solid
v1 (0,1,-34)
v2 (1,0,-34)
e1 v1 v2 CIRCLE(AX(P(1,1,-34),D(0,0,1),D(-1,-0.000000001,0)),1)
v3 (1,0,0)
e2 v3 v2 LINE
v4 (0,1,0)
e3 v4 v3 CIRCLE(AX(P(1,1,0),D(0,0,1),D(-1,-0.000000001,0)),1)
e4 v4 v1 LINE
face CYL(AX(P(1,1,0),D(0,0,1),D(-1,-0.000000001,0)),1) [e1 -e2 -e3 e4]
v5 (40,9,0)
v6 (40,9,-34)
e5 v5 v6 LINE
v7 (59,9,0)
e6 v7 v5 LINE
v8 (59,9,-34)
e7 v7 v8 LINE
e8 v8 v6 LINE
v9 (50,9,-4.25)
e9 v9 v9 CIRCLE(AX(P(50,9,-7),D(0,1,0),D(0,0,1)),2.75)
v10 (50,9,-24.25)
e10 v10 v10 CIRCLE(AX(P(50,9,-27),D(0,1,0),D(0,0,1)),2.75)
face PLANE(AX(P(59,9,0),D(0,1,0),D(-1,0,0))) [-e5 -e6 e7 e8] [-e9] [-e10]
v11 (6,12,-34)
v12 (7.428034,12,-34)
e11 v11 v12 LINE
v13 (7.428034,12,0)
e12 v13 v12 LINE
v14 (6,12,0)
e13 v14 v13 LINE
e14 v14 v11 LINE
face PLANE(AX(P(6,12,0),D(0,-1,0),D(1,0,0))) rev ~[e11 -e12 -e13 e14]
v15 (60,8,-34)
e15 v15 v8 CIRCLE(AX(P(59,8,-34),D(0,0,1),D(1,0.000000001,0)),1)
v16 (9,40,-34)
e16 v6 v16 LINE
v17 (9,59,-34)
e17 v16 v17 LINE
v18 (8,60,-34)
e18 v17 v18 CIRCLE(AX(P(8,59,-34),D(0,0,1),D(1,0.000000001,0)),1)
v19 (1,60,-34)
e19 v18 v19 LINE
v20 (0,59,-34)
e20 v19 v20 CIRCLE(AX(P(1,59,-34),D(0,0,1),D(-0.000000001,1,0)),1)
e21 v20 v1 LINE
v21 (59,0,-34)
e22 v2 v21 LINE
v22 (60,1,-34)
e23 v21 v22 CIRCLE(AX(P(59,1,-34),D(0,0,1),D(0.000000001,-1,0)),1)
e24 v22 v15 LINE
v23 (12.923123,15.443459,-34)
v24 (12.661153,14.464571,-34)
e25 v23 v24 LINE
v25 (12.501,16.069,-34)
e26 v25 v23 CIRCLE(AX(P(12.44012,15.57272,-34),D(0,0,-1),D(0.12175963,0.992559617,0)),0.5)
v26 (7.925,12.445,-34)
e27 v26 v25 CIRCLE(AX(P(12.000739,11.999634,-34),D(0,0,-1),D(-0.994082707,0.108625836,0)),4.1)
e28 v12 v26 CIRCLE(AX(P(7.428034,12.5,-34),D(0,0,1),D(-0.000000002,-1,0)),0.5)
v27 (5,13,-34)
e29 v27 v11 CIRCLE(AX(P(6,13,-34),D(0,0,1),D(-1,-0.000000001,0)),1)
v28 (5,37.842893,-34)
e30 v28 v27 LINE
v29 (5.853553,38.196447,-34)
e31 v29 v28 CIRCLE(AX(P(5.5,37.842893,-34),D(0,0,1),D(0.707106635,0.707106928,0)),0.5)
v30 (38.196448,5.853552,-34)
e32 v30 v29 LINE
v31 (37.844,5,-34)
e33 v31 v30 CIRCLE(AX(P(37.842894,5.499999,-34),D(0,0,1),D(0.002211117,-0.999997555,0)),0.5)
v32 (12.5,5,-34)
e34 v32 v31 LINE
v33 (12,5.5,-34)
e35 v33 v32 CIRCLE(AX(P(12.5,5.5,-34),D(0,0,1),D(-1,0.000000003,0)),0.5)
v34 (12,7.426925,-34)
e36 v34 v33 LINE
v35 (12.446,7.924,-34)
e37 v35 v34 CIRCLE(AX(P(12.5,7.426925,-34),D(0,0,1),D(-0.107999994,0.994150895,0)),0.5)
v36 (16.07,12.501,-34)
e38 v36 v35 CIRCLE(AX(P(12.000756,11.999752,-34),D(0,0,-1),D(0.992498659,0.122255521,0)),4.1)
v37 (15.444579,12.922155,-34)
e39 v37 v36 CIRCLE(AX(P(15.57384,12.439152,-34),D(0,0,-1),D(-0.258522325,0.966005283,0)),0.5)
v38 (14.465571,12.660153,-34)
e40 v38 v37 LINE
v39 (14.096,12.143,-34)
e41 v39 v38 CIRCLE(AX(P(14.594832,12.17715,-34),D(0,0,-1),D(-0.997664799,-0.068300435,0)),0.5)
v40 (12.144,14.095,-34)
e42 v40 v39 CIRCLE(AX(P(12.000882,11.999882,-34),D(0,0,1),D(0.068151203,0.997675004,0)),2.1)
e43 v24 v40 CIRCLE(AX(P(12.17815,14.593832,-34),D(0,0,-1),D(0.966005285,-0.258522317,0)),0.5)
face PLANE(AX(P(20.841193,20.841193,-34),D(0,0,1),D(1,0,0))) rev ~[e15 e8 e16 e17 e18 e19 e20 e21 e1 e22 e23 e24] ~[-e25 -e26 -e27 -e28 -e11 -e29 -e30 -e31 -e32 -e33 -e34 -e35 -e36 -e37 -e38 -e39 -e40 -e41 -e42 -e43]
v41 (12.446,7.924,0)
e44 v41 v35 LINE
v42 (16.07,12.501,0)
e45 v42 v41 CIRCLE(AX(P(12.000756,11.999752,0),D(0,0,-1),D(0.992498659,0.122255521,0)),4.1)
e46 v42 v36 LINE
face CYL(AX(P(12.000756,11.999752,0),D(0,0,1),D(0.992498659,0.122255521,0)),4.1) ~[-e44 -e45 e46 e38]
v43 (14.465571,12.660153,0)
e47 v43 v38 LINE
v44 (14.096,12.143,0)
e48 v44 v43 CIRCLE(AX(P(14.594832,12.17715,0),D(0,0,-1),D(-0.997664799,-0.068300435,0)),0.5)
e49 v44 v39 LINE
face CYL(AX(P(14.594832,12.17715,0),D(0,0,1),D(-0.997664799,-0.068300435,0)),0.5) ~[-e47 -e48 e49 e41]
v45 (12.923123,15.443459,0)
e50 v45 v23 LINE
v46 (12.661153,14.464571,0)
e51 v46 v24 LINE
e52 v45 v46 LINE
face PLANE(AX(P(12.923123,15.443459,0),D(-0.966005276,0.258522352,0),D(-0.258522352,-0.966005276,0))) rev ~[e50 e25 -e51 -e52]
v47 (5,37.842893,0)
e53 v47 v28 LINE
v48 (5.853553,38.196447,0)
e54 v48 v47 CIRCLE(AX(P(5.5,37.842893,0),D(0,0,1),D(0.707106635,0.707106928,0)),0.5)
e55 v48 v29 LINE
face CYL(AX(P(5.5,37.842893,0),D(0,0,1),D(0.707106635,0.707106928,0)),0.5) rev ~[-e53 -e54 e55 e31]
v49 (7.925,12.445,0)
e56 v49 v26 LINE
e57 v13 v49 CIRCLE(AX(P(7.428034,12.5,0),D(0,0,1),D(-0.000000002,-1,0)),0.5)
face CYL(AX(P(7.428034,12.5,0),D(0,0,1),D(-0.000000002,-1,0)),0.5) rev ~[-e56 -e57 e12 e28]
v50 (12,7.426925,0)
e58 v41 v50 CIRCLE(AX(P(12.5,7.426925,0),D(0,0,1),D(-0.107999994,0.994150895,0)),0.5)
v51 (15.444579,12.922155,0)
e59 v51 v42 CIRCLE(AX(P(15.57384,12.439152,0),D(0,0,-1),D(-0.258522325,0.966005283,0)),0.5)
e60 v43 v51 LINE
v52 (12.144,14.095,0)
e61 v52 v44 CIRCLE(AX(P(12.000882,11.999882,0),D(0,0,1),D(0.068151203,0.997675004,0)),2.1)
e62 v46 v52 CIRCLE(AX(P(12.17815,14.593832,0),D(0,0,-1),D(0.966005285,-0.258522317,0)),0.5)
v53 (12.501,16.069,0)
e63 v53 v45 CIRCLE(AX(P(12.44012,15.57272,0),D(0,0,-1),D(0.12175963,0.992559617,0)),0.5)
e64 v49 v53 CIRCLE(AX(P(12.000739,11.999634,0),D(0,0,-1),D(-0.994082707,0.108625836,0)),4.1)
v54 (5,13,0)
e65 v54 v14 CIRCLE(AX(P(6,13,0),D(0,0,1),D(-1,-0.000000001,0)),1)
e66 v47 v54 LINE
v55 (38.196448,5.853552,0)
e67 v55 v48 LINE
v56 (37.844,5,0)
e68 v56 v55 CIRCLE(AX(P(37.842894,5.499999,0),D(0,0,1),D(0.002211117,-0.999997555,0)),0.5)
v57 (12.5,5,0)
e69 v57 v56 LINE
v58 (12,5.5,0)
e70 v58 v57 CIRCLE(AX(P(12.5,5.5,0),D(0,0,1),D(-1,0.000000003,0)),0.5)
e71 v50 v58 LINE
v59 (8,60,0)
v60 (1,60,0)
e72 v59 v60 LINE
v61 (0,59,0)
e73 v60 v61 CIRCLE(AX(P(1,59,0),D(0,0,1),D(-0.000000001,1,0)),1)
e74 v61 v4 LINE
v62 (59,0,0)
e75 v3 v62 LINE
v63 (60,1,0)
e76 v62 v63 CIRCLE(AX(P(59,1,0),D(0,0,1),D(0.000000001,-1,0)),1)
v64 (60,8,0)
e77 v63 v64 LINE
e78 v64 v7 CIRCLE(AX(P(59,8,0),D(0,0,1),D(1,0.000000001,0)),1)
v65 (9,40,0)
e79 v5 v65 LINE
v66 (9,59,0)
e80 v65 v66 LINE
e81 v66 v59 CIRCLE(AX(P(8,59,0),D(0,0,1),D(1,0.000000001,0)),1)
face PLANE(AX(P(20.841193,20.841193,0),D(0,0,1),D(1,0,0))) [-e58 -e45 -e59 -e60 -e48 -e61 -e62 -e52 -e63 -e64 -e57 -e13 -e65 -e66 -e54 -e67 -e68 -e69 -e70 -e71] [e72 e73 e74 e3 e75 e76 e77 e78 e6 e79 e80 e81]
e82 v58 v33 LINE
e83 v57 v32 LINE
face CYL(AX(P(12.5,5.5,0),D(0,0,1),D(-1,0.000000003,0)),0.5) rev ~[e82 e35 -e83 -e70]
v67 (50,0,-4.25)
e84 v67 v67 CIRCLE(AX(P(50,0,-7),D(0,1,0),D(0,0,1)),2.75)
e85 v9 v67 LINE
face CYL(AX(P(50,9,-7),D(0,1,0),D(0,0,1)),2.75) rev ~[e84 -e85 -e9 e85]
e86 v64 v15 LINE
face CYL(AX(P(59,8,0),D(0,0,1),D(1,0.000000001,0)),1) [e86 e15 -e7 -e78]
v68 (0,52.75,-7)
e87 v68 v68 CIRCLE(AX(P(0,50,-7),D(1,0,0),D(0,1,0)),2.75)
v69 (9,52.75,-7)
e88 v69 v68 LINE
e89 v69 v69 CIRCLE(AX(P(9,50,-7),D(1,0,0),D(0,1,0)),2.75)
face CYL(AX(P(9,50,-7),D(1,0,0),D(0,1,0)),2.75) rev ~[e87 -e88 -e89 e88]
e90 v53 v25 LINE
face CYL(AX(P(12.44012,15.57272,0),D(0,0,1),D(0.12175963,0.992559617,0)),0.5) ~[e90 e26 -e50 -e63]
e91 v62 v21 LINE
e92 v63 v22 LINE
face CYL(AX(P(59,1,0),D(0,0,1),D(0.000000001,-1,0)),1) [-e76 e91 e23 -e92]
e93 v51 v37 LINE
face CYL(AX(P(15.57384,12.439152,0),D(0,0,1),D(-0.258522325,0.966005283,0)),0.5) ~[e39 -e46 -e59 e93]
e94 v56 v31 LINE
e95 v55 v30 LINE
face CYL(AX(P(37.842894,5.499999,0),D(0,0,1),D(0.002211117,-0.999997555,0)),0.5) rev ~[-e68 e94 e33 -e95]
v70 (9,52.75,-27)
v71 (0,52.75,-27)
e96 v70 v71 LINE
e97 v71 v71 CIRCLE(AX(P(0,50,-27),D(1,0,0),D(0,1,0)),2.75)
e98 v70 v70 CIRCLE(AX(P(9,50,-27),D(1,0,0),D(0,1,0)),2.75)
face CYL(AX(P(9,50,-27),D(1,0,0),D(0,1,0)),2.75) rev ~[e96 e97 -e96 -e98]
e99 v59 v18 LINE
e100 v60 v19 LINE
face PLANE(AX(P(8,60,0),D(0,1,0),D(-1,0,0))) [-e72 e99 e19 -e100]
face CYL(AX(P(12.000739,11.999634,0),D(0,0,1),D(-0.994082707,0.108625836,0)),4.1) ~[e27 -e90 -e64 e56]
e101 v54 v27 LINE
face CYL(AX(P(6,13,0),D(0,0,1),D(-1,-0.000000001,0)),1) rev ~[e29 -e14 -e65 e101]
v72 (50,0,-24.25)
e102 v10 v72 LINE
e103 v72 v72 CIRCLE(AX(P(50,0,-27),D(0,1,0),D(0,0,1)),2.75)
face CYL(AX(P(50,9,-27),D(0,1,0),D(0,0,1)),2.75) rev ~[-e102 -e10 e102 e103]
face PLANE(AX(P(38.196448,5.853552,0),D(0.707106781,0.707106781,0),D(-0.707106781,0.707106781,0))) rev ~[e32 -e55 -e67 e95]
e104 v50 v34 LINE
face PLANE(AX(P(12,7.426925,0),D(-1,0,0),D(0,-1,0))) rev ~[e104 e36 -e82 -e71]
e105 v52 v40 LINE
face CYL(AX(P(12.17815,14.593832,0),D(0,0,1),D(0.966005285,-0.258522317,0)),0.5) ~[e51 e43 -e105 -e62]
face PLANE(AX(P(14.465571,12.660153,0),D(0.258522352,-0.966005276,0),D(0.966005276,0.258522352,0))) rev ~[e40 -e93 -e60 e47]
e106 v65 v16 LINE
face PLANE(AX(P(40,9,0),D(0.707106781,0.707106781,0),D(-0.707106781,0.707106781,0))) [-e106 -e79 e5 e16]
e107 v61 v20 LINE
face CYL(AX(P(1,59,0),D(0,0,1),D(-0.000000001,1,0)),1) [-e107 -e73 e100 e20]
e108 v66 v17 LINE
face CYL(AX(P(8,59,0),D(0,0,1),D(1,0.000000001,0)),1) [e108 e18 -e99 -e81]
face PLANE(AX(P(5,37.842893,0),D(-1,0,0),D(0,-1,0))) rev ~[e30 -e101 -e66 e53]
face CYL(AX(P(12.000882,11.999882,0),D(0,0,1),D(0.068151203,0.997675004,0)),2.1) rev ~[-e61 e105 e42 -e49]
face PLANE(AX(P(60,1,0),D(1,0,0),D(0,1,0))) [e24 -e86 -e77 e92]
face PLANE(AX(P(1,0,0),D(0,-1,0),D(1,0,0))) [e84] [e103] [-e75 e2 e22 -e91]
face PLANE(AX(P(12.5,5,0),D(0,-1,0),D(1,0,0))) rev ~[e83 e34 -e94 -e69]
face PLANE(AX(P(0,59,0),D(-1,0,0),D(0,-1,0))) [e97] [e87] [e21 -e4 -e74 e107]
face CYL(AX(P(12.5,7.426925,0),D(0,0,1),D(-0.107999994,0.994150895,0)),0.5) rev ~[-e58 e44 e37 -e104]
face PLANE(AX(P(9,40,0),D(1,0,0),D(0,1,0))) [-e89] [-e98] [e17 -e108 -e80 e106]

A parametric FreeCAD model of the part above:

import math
import FreeCAD as App
import Part
import Sketcher
from FreeCAD import Vector
Q = App.Units.Quantity

doc = App.newDocument("Part")
body = doc.addObject("PartDesign::Body", "Body")

sketch1 = body.newObject("Sketcher::SketchObject", "Sketch")
sketch1.AttachmentSupport = (doc.getObject("XY_Plane"), [""])
sketch1.MapMode = "FlatFace"
sketch1.addGeometry([
    Part.LineSegment(Vector(40, 9, 0), Vector(9, 40, 0)),
    Part.LineSegment(Vector(9, 40, 0), Vector(9, 59, 0)),
    Part.ArcOfCircle(Part.Circle(Vector(8, 59, 0), Vector(0, 0, 1), 1), math.radians(0), math.radians(90)),
    Part.LineSegment(Vector(8, 60, 0), Vector(1, 60, 0)),
    Part.ArcOfCircle(Part.Circle(Vector(1, 59, 0), Vector(0, 0, 1), 1), math.radians(90), math.radians(180)),
    Part.LineSegment(Vector(0, 59, 0), Vector(0, 1, 0)),
    Part.ArcOfCircle(Part.Circle(Vector(1, 1, 0), Vector(0, 0, 1), 1), math.radians(-180), math.radians(-90)),
    Part.LineSegment(Vector(1, 0, 0), Vector(59, 0, 0)),
    Part.ArcOfCircle(Part.Circle(Vector(59, 1, 0), Vector(0, 0, 1), 1), math.radians(-90), math.radians(0)),
    Part.LineSegment(Vector(60, 1, 0), Vector(60, 8, 0)),
    Part.ArcOfCircle(Part.Circle(Vector(59, 8, 0), Vector(0, 0, 1), 1), math.radians(0), math.radians(90)),
    Part.LineSegment(Vector(59, 9, 0), Vector(40, 9, 0)),
    Part.LineSegment(Vector(7.428034, 12, 0), Vector(6, 12, 0)),
    Part.ArcOfCircle(Part.Circle(Vector(6, 13, 0), Vector(0, 0, 1), 1), math.radians(-180), math.radians(-90)),
    Part.LineSegment(Vector(5, 13, 0), Vector(5, 37.842893, 0)),
    Part.ArcOfCircle(Part.Circle(Vector(5.5, 37.842893, 0), Vector(0, 0, 1), 0.5), math.radians(45.000012), math.radians(179.999983)),
    Part.LineSegment(Vector(5.853553, 38.196447, 0), Vector(38.196448, 5.853552, 0)),
    Part.ArcOfCircle(Part.Circle(Vector(37.842894, 5.499999, 0), Vector(0, 0, 1), 0.5), math.radians(-89.873312), math.radians(44.999983)),
    Part.LineSegment(Vector(37.844, 5, 0), Vector(12.5, 5, 0)),
    Part.ArcOfCircle(Part.Circle(Vector(12.5, 5.5, 0), Vector(0, 0, 1), 0.5), math.radians(180), math.radians(270)),
    Part.LineSegment(Vector(12, 5.5, 0), Vector(12, 7.426925, 0)),
    Part.ArcOfCircle(Part.Circle(Vector(12.5, 7.426925, 0), Vector(0, 0, 1), 0.5), math.radians(96.200037), math.radians(180)),
    Part.ArcOfCircle(Part.Circle(Vector(12.000756, 11.999752, 0), Vector(0, 0, 1), 4.1), math.radians(-83.7656), math.radians(7.022293)),
    Part.ArcOfCircle(Part.Circle(Vector(15.57384, 12.439152, 0), Vector(0, 0, 1), 0.5), math.radians(7.10543), math.radians(104.9824)),
    Part.LineSegment(Vector(15.444579, 12.922155, 0), Vector(14.465571, 12.660153, 0)),
    Part.ArcOfCircle(Part.Circle(Vector(14.594832, 12.17715, 0), Vector(0, 0, 1), 0.5), math.radians(104.9824), math.radians(183.916376)),
    Part.ArcOfCircle(Part.Circle(Vector(12.000882, 11.999882, 0), Vector(0, 0, 1), 2.1), math.radians(86.092195), math.radians(363.907805)),
    Part.ArcOfCircle(Part.Circle(Vector(12.17815, 14.593832, 0), Vector(0, 0, 1), 0.5), math.radians(-93.916376), math.radians(-14.9824)),
    Part.LineSegment(Vector(12.661153, 14.464571, 0), Vector(12.923123, 15.443459, 0)),
    Part.ArcOfCircle(Part.Circle(Vector(12.44012, 15.57272, 0), Vector(0, 0, 1), 0.5), math.radians(-14.982401), math.radians(83.006333)),
    Part.ArcOfCircle(Part.Circle(Vector(12.000739, 11.999634, 0), Vector(0, 0, 1), 4.1), math.radians(82.9916), math.radians(173.763893)),
    Part.ArcOfCircle(Part.Circle(Vector(7.428034, 12.5, 0), Vector(0, 0, 1), 0.5), math.radians(-90), math.radians(-6.315315)),
], False)
sketch1.addConstraint([
    Sketcher.Constraint("Coincident", 0, 2, 1, 1),
    Sketcher.Constraint("Tangent", 1, 2, 2, 1),
    Sketcher.Constraint("Tangent", 2, 2, 3, 1),
    Sketcher.Constraint("Tangent", 3, 2, 4, 1),
    Sketcher.Constraint("Tangent", 4, 2, 5, 1),
    Sketcher.Constraint("Tangent", 5, 2, 6, 1),
    Sketcher.Constraint("Tangent", 6, 2, 7, 1),
    Sketcher.Constraint("Tangent", 7, 2, 8, 1),
    Sketcher.Constraint("Tangent", 8, 2, 9, 1),
    Sketcher.Constraint("Tangent", 9, 2, 10, 1),
    Sketcher.Constraint("Tangent", 10, 2, 11, 1),
    Sketcher.Constraint("Coincident", 11, 2, 0, 1),
    Sketcher.Constraint("Tangent", 12, 2, 13, 2),
    Sketcher.Constraint("Tangent", 13, 1, 14, 1),
    Sketcher.Constraint("Tangent", 14, 2, 15, 2),
    Sketcher.Constraint("Tangent", 15, 1, 16, 1),
    Sketcher.Constraint("Tangent", 16, 2, 17, 2),
    Sketcher.Constraint("Coincident", 17, 1, 18, 1),
    Sketcher.Constraint("Tangent", 18, 2, 19, 2),
    Sketcher.Constraint("Tangent", 19, 1, 20, 1),
    Sketcher.Constraint("Tangent", 20, 2, 21, 2),
    Sketcher.Constraint("Coincident", 21, 1, 22, 1),
    Sketcher.Constraint("Coincident", 22, 2, 23, 1),
    Sketcher.Constraint("Tangent", 23, 2, 24, 1),
    Sketcher.Constraint("Tangent", 24, 2, 25, 1),
    Sketcher.Constraint("Coincident", 25, 2, 26, 2),
    Sketcher.Constraint("Coincident", 26, 1, 27, 1),
    Sketcher.Constraint("Tangent", 27, 2, 28, 1),
    Sketcher.Constraint("Tangent", 28, 2, 29, 1),
    Sketcher.Constraint("Coincident", 29, 2, 30, 1),
    Sketcher.Constraint("Coincident", 30, 2, 31, 2),
    Sketcher.Constraint("Tangent", 31, 1, 12, 1),
    Sketcher.Constraint("Vertical", 1),
    Sketcher.Constraint("Horizontal", 3),
    Sketcher.Constraint("Vertical", 5),
    Sketcher.Constraint("Horizontal", 7),
    Sketcher.Constraint("Vertical", 9),
    Sketcher.Constraint("Horizontal", 11),
    Sketcher.Constraint("Horizontal", 12),
    Sketcher.Constraint("Vertical", 14),
    Sketcher.Constraint("Horizontal", 18),
    Sketcher.Constraint("Vertical", 20),
    Sketcher.Constraint("Equal", 2, 4),
    Sketcher.Constraint("Equal", 4, 6),
    Sketcher.Constraint("Equal", 6, 8),
    Sketcher.Constraint("Equal", 8, 10),
    Sketcher.Constraint("Equal", 10, 13),
    Sketcher.Constraint("Equal", 15, 17),
    Sketcher.Constraint("Equal", 17, 19),
    Sketcher.Constraint("Equal", 19, 21),
    Sketcher.Constraint("Equal", 21, 23),
    Sketcher.Constraint("Equal", 23, 25),
    Sketcher.Constraint("Equal", 25, 27),
    Sketcher.Constraint("Equal", 27, 29),
    Sketcher.Constraint("Equal", 22, 30),
    Sketcher.Constraint("Equal", 29, 31),
    Sketcher.Constraint("PointOnObject", 4, 2, -2),
    Sketcher.Constraint("PointOnObject", 6, 2, -1),
    Sketcher.Constraint("Parallel", 0, 16),
    Sketcher.Constraint("Equal", 11, 1),
    Sketcher.Constraint("Equal", 7, 5),
    Sketcher.Constraint("Equal", 3, 9),
    Sketcher.Constraint("Radius", 2, Q("1 mm")),
    Sketcher.Constraint("Radius", 15, Q("0.5 mm")),
    Sketcher.Constraint("Radius", 22, Q("4.1 mm")),
    Sketcher.Constraint("Radius", 26, Q("2.1 mm")),
    Sketcher.Constraint("DistanceX", 3, 2, 3, 1, Q("7 mm")),
    Sketcher.Constraint("DistanceX", 7, 1, 7, 2, Q("58 mm")),
    Sketcher.Constraint("DistanceX", 11, 2, 11, 1, Q("19 mm")),
    Sketcher.Constraint("DistanceX", -1, 1, 13, 3, Q("6 mm")),
    Sketcher.Constraint("DistanceY", -1, 1, 13, 3, Q("13 mm")),
    Sketcher.Constraint("DistanceY", -1, 1, 17, 1, Q("5 mm")),
    Sketcher.Constraint("DistanceX", -1, 1, 19, 1, Q("12 mm")),
    Sketcher.Constraint("DistanceX", 18, 2, 18, 1, Q("25.344 mm")),
    Sketcher.Constraint("DistanceX", -1, 1, 22, 2, Q("16.07 mm")),
    Sketcher.Constraint("DistanceX", -1, 1, 21, 1, Q("12.446 mm")),
    Sketcher.Constraint("DistanceY", -1, 1, 21, 1, Q("7.924 mm")),
    Sketcher.Constraint("DistanceY", -1, 1, 22, 2, Q("12.501 mm")),
    Sketcher.Constraint("DistanceX", -1, 1, 25, 2, Q("14.096 mm")),
    Sketcher.Constraint("DistanceY", -1, 1, 25, 2, Q("12.143 mm")),
    Sketcher.Constraint("DistanceX", -1, 1, 26, 1, Q("12.144 mm")),
    Sketcher.Constraint("DistanceY", -1, 1, 26, 1, Q("14.095 mm")),
    Sketcher.Constraint("DistanceX", -1, 1, 29, 2, Q("12.501 mm")),
    Sketcher.Constraint("DistanceY", -1, 1, 29, 2, Q("16.069 mm")),
    Sketcher.Constraint("DistanceX", -1, 1, 30, 2, Q("7.925 mm")),
    Sketcher.Constraint("DistanceY", -1, 1, 30, 2, Q("12.445 mm")),
    Sketcher.Constraint("DistanceY", 23, 3, 24, 2, Q("0.221001 mm")),
    Sketcher.Constraint("DistanceY", 22, 3, 23, 3, Q("0.4394 mm")),
    Sketcher.Constraint("DistanceY", 30, 3, 27, 3, Q("2.594198 mm")),
    Sketcher.Constraint("Distance", 16, Q("45.73976 mm")),
    Sketcher.Constraint("DistanceX", -1, 1, 29, 3, Q("12.44012 mm")),
])
pad1 = body.newObject("PartDesign::Pad", "Pad")
pad1.Profile = sketch1
pad1.Length = 34
pad1.Reversed = True

sketch2 = body.newObject("Sketcher::SketchObject", "Sketch001")
sketch2.AttachmentSupport = (doc.getObject("XZ_Plane"), [""])
sketch2.MapMode = "FlatFace"
sketch2.AttachmentOffset = App.Placement(Vector(0, 0, -9), App.Rotation())
sketch2.addGeometry([
    Part.Circle(Vector(50, -27, 0), Vector(0, 0, 1), 2.75),
    Part.Circle(Vector(50, -7, 0), Vector(0, 0, 1), 2.75),
], False)
sketch2.addConstraint([
    Sketcher.Constraint("Equal", 0, 1),
    Sketcher.Constraint("Vertical", 0, 3, 1, 3),
    Sketcher.Constraint("Diameter", 0, Q("5.5 mm")),
    Sketcher.Constraint("DistanceX", -1, 1, 0, 3, Q("50 mm")),
    Sketcher.Constraint("DistanceY", 0, 3, -1, 1, Q("27 mm")),
    Sketcher.Constraint("DistanceY", 1, 3, -1, 1, Q("7 mm")),
])
pocket1 = body.newObject("PartDesign::Pocket", "Pocket")
pocket1.Profile = sketch2
pocket1.Type = "ThroughAll"
pocket1.Reversed = True

sketch3 = body.newObject("Sketcher::SketchObject", "Sketch002")
sketch3.AttachmentSupport = (doc.getObject("YZ_Plane"), [""])
sketch3.MapMode = "FlatFace"
sketch3.AttachmentOffset = App.Placement(Vector(0, 0, 9), App.Rotation())
sketch3.addGeometry([
    Part.Circle(Vector(50, -7, 0), Vector(0, 0, 1), 2.75),
    Part.Circle(Vector(50, -27, 0), Vector(0, 0, 1), 2.75),
], False)
sketch3.addConstraint([
    Sketcher.Constraint("Equal", 0, 1),
    Sketcher.Constraint("Vertical", 0, 3, 1, 3),
    Sketcher.Constraint("Diameter", 0, Q("5.5 mm")),
    Sketcher.Constraint("DistanceX", -1, 1, 0, 3, Q("50 mm")),
    Sketcher.Constraint("DistanceY", 0, 3, -1, 1, Q("7 mm")),
    Sketcher.Constraint("DistanceY", 1, 3, -1, 1, Q("27 mm")),
])
pocket2 = body.newObject("PartDesign::Pocket", "Pocket001")
pocket2.Profile = sketch3
pocket2.Type = "ThroughAll"

doc.recompute()
